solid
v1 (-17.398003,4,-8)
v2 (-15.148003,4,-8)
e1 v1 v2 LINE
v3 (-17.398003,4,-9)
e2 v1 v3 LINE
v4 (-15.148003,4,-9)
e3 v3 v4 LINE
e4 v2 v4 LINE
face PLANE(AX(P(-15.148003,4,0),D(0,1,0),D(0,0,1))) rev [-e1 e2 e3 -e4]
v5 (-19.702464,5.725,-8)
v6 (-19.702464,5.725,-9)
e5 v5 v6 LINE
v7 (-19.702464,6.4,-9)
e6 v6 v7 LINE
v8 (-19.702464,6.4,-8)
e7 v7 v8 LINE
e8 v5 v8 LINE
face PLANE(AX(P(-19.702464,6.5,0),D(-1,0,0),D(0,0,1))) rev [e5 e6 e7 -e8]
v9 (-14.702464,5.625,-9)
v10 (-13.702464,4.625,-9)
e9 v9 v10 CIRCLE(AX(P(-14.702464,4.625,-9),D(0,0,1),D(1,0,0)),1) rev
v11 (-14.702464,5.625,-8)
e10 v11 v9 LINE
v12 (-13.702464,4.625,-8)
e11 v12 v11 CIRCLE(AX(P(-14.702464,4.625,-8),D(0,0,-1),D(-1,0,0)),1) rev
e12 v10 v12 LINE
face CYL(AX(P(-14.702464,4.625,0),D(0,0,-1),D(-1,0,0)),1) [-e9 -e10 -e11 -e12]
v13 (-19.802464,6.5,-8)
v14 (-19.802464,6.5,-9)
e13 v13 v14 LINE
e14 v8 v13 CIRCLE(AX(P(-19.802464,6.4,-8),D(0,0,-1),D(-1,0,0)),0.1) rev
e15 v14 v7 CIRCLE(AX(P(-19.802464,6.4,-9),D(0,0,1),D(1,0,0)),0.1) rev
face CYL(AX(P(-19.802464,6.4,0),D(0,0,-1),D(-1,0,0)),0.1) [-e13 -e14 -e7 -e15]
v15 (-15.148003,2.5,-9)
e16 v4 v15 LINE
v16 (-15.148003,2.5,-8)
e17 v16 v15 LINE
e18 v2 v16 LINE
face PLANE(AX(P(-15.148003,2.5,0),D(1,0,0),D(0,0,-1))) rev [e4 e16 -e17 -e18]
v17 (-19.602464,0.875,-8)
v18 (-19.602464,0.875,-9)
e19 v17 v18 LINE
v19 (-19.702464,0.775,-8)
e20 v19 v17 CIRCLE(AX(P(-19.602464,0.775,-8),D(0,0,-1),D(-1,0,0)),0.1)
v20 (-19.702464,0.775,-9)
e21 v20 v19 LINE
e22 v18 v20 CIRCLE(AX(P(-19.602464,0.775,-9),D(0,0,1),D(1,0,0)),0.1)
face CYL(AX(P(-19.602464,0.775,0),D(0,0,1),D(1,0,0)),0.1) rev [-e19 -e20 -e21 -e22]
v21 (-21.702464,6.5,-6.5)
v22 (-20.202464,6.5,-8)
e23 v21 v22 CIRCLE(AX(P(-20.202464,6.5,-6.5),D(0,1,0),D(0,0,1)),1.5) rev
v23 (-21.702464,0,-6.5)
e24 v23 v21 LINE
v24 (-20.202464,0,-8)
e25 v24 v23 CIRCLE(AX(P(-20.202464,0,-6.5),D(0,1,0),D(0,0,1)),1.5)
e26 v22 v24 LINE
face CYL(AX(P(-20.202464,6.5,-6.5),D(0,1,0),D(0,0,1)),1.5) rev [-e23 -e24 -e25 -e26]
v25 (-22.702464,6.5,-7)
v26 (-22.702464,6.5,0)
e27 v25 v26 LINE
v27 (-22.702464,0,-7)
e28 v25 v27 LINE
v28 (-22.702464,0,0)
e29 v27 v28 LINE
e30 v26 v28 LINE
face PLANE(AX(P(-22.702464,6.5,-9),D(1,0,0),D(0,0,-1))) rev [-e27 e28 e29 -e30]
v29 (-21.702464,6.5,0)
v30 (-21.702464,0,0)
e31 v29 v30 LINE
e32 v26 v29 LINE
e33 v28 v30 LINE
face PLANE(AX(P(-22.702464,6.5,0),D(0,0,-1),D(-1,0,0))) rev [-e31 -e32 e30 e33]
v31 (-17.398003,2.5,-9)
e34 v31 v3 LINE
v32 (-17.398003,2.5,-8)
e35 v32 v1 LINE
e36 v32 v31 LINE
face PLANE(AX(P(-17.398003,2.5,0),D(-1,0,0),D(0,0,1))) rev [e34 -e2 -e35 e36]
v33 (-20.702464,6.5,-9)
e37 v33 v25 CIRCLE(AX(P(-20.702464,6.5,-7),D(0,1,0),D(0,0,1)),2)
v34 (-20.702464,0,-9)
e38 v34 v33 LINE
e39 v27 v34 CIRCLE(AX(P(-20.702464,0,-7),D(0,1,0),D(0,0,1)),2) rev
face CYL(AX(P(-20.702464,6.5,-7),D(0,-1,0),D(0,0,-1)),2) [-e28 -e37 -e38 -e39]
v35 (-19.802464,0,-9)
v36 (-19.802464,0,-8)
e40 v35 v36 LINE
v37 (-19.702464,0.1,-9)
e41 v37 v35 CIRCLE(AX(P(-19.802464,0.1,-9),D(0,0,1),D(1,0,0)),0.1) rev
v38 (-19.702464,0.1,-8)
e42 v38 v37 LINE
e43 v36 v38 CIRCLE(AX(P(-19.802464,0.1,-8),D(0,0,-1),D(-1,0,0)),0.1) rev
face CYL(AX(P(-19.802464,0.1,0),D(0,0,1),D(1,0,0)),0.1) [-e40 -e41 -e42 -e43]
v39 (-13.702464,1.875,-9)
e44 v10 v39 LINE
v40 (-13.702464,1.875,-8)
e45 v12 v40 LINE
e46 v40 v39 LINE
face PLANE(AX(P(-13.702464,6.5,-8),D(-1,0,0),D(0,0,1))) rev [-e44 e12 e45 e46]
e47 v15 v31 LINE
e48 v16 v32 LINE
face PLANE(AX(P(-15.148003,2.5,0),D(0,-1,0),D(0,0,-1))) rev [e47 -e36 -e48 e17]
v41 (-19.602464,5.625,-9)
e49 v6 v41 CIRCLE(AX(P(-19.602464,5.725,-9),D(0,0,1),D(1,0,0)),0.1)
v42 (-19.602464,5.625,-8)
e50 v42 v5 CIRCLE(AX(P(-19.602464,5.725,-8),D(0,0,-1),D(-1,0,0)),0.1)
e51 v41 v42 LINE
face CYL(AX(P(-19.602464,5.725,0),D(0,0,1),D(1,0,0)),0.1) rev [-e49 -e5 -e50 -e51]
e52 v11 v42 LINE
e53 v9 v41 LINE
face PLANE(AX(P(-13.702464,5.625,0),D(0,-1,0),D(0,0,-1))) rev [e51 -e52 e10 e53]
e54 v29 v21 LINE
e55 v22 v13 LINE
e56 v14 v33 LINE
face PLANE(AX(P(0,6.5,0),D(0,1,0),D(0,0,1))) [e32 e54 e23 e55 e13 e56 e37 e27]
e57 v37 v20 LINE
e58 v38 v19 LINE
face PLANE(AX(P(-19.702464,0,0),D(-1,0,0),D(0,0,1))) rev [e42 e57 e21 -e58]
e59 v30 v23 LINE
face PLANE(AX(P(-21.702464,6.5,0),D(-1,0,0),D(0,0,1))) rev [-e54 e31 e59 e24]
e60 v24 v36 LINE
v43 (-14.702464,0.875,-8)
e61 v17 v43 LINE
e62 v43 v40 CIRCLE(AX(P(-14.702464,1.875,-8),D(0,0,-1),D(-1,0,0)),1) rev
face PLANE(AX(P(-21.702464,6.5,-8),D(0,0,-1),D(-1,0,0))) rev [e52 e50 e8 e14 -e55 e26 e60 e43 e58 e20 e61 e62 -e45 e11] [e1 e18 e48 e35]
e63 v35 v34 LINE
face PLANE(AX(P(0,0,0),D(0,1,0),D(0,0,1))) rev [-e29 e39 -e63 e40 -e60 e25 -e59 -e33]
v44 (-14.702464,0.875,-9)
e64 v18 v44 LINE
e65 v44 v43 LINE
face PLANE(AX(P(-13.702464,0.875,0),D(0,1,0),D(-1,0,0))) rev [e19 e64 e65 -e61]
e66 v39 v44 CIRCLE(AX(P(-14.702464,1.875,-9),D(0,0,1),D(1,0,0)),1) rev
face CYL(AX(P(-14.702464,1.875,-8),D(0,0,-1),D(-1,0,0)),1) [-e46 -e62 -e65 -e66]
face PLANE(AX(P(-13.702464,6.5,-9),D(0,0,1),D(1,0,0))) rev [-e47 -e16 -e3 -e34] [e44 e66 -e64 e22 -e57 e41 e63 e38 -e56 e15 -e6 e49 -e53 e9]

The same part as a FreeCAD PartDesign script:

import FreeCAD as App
import Part
import Sketcher
Q = App.Units.Quantity


def edges_at(feature, points):
    """Names of the edges that pass closest to the given points."""
    edges = feature.Shape.Edges
    near = lambda p: min(range(len(edges)), key=lambda i: edges[i].distToShape(Part.Vertex(*p))[0])
    return sorted({f"Edge{near(p) + 1}" for p in points})

doc = App.newDocument("Part")
body = doc.addObject("PartDesign::Body", "Body")

sketch1 = body.newObject("Sketcher::SketchObject", "Sketch")
sketch1.AttachmentSupport = (doc.getObject("XZ_Plane"), [""])
sketch1.MapMode = "FlatFace"
sketch1.addGeometry([
    Part.LineSegment(App.Vector(-22.7, 0, 0), App.Vector(-21.7, 0, 0)),
    Part.LineSegment(App.Vector(-21.7, 0, 0), App.Vector(-21.7, -8, 0)),
    Part.LineSegment(App.Vector(-21.7, -8, 0), App.Vector(-13.7, -8, 0)),
    Part.LineSegment(App.Vector(-13.7, -8, 0), App.Vector(-13.7, -9, 0)),
    Part.LineSegment(App.Vector(-13.7, -9, 0), App.Vector(-22.7, -9, 0)),
    Part.LineSegment(App.Vector(-22.7, -9, 0), App.Vector(-22.7, 0, 0)),
], False)
sketch1.addConstraint([
    Sketcher.Constraint("Coincident", 0, 2, 1, 1),
    Sketcher.Constraint("Coincident", 1, 2, 2, 1),
    Sketcher.Constraint("Coincident", 2, 2, 3, 1),
    Sketcher.Constraint("Coincident", 3, 2, 4, 1),
    Sketcher.Constraint("Coincident", 4, 2, 5, 1),
    Sketcher.Constraint("Coincident", 5, 2, 0, 1),
    Sketcher.Constraint("Horizontal", 0),
    Sketcher.Constraint("Vertical", 1),
    Sketcher.Constraint("Horizontal", 2),
    Sketcher.Constraint("Vertical", 3),
    Sketcher.Constraint("Horizontal", 4),
    Sketcher.Constraint("Vertical", 5),
    Sketcher.Constraint("PointOnObject", 0, 2, -1),
    Sketcher.Constraint("Equal", 2, 1),
    Sketcher.Constraint("Equal", 0, 3),
    Sketcher.Constraint("DistanceX", 0, 1, 0, 2, Q("1 mm")),
    Sketcher.Constraint("DistanceX", 2, 1, 2, 2, Q("8 mm")),
    Sketcher.Constraint("DistanceX", 0, 2, -1, 1, Q("21.702464 mm")),
])
pad1 = body.newObject("PartDesign::Pad", "Pad")
pad1.Profile = sketch1
pad1.Length = 6.5
pad1.Reversed = True
doc.recompute()

fillet = body.newObject("PartDesign::Fillet", "Fillet")
fillet.Base = (pad1, edges_at(pad1, [(-22.702, 3.25, -9)]))
fillet.Radius = 2
doc.recompute()

fillet2 = body.newObject("PartDesign::Fillet", "Fillet001")
fillet2.Base = (fillet, edges_at(fillet, [(-21.702, 3.25, -8)]))
fillet2.Radius = 1.5

sketch2 = body.newObject("Sketcher::SketchObject", "Sketch001")
sketch2.AttachmentSupport = (doc.getObject("XY_Plane"), [""])
sketch2.MapMode = "FlatFace"
sketch2.AttachmentOffset = App.Placement(App.Vector(0, 0, -9), App.Rotation())
sketch2.addGeometry([
    Part.LineSegment(App.Vector(-13.7, 0.9, 0), App.Vector(-13.7, 0, 0)),
    Part.LineSegment(App.Vector(-13.7, 0, 0), App.Vector(-19.7, 0, 0)),
    Part.LineSegment(App.Vector(-19.7, 0, 0), App.Vector(-19.7, 0.9, 0)),
    Part.LineSegment(App.Vector(-19.7, 0.9, 0), App.Vector(-13.7, 0.9, 0)),
    Part.LineSegment(App.Vector(-13.7, 6.5, 0), App.Vector(-13.7, 5.6, 0)),
    Part.LineSegment(App.Vector(-13.7, 5.6, 0), App.Vector(-19.7, 5.6, 0)),
    Part.LineSegment(App.Vector(-19.7, 5.6, 0), App.Vector(-19.7, 6.5, 0)),
    Part.LineSegment(App.Vector(-19.7, 6.5, 0), App.Vector(-13.7, 6.5, 0)),
], False)
sketch2.addConstraint([
    Sketcher.Constraint("Coincident", 0, 2, 1, 1),
    Sketcher.Constraint("Coincident", 1, 2, 2, 1),
    Sketcher.Constraint("Coincident", 2, 2, 3, 1),
    Sketcher.Constraint("Coincident", 3, 2, 0, 1),
    Sketcher.Constraint("Coincident", 4, 2, 5, 1),
    Sketcher.Constraint("Coincident", 5, 2, 6, 1),
    Sketcher.Constraint("Coincident", 6, 2, 7, 1),
    Sketcher.Constraint("Coincident", 7, 2, 4, 1),
    Sketcher.Constraint("Vertical", 0),
    Sketcher.Constraint("Horizontal", 1),
    Sketcher.Constraint("Vertical", 2),
    Sketcher.Constraint("Horizontal", 3),
    Sketcher.Constraint("Vertical", 4),
    Sketcher.Constraint("Horizontal", 5),
    Sketcher.Constraint("Vertical", 6),
    Sketcher.Constraint("Horizontal", 7),
    Sketcher.Constraint("PointOnObject", 0, 2, -1),
    Sketcher.Constraint("Vertical", 3, 2, 4, 2),
    Sketcher.Constraint("Vertical", 2, 2, 5, 2),
    Sketcher.Constraint("Equal", 2, 4),
    Sketcher.Constraint("DistanceX", 1, 2, 1, 1, Q("6 mm")),
    Sketcher.Constraint("DistanceY", -1, 1, 6, 2, Q("6.5 mm")),
    Sketcher.Constraint("DistanceY", 0, 2, 0, 1, Q("0.875 mm")),
    Sketcher.Constraint("DistanceX", 0, 2, -1, 1, Q("13.702464 mm")),
])
pocket1 = body.newObject("PartDesign::Pocket", "Pocket")
pocket1.Profile = sketch2
pocket1.Type = "ThroughAll"
pocket1.Reversed = True
doc.recompute()

fillet3 = body.newObject("PartDesign::Fillet", "Fillet002")
fillet3.Base = (pocket1, edges_at(pocket1, [(-13.702, 0.875, -8.5), (-13.702, 5.625, -8.5)]))
fillet3.Radius = 1
doc.recompute()

fillet4 = body.newObject("PartDesign::Fillet", "Fillet003")
fillet4.Base = (fillet3, edges_at(fillet3, [(-19.702, 0, -8.5), (-19.702, 6.5, -8.5)]))
fillet4.Radius = 0.1
doc.recompute()

fillet5 = body.newObject("PartDesign::Fillet", "Fillet004")
fillet5.Base = (fillet4, edges_at(fillet4, [(-19.702, 0.875, -8.5), (-19.702, 5.625, -8.5)]))
fillet5.Radius = 0.1

sketch3 = body.newObject("Sketcher::SketchObject", "Sketch002")
sketch3.AttachmentSupport = (doc.getObject("XY_Plane"), [""])
sketch3.MapMode = "FlatFace"
sketch3.AttachmentOffset = App.Placement(App.Vector(0, 0, -9), App.Rotation())
sketch3.addGeometry([
    Part.LineSegment(App.Vector(-15.1, 4, 0), App.Vector(-15.1, 2.5, 0)),
    Part.LineSegment(App.Vector(-15.1, 2.5, 0), App.Vector(-17.4, 2.5, 0)),
    Part.LineSegment(App.Vector(-17.4, 2.5, 0), App.Vector(-17.4, 4, 0)),
    Part.LineSegment(App.Vector(-17.4, 4, 0), App.Vector(-15.1, 4, 0)),
], False)
sketch3.addConstraint([
    Sketcher.Constraint("Coincident", 0, 2, 1, 1),
    Sketcher.Constraint("Coincident", 1, 2, 2, 1),
    Sketcher.Constraint("Coincident", 2, 2, 3, 1),
    Sketcher.Constraint("Coincident", 3, 2, 0, 1),
    Sketcher.Constraint("Vertical", 0),
    Sketcher.Constraint("Horizontal", 1),
    Sketcher.Constraint("Vertical", 2),
    Sketcher.Constraint("Horizontal", 3),
    Sketcher.Constraint("DistanceY", 0, 2, 0, 1, Q("1.5 mm")),
    Sketcher.Constraint("DistanceY", -1, 1, 2, 2, Q("4 mm")),
    Sketcher.Constraint("DistanceX", 1, 2, 1, 1, Q("2.25 mm")),
    Sketcher.Constraint("DistanceX", 0, 2, -1, 1, Q("15.148003 mm")),
])
pocket2 = body.newObject("PartDesign::Pocket", "Pocket001")
pocket2.Profile = sketch3
pocket2.Type = "ThroughAll"
pocket2.Reversed = True

doc.recompute()
